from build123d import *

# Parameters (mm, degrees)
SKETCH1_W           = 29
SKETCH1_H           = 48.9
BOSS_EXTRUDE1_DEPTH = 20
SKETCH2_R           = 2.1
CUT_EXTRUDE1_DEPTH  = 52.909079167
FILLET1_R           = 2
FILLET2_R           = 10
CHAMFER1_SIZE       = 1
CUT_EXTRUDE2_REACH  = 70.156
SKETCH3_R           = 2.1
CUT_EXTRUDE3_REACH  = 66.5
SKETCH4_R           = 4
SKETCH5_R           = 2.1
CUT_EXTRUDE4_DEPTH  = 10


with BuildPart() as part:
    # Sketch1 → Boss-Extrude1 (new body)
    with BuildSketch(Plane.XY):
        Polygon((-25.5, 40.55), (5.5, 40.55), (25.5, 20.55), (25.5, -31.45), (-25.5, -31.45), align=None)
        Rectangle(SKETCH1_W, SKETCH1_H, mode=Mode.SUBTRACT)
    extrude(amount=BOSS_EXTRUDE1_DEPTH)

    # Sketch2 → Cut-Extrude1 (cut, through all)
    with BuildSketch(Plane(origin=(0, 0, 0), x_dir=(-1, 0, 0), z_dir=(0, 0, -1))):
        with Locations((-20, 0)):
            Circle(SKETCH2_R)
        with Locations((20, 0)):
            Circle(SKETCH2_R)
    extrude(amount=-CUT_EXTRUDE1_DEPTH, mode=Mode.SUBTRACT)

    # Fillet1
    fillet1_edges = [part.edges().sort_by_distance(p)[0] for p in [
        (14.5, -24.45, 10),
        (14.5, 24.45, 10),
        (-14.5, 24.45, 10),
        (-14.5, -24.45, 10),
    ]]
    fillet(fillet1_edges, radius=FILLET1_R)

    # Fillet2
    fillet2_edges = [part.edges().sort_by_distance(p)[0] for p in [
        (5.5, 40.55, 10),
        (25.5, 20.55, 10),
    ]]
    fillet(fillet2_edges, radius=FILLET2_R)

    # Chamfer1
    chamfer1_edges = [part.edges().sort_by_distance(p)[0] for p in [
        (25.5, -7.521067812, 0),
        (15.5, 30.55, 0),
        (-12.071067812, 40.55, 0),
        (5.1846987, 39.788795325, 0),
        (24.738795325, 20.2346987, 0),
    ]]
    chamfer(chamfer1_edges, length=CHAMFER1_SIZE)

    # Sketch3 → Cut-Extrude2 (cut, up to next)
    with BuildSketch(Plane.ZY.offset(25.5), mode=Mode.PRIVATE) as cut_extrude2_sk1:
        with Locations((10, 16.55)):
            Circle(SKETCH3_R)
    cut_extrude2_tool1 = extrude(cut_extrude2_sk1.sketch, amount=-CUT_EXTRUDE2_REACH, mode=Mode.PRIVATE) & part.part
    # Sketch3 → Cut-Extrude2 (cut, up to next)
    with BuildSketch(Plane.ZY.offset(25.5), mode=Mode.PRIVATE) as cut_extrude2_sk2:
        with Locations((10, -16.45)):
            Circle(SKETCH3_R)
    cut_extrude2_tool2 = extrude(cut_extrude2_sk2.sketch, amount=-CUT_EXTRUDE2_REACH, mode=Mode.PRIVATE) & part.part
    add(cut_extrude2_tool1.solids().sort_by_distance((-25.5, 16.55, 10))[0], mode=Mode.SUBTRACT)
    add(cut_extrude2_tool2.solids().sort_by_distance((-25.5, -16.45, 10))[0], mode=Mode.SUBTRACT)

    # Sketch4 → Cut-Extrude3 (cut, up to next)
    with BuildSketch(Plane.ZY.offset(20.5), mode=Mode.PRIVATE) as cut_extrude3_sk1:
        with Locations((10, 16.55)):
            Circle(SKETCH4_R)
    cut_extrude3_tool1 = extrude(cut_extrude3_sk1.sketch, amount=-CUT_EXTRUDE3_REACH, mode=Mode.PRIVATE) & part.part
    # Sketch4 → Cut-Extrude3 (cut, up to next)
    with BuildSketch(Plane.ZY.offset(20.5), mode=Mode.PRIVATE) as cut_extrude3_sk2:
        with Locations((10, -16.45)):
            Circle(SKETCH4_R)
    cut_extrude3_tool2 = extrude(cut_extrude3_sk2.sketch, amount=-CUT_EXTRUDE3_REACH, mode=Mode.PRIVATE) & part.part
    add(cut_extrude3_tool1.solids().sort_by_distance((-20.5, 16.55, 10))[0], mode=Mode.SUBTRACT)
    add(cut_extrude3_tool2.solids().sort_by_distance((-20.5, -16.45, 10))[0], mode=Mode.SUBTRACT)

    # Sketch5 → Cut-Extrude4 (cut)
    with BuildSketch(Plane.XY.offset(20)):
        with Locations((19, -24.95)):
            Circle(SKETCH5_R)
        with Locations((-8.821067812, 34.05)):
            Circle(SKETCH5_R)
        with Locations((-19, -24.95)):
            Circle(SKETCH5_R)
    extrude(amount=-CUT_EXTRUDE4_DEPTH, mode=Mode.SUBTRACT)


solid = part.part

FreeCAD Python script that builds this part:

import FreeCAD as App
import Part
import Sketcher
Q = App.Units.Quantity


def edges_at(feature, points):
    """Names of the edges that pass closest to the given points."""
    edges = feature.Shape.Edges
    near = lambda p: min(range(len(edges)), key=lambda i: edges[i].distToShape(Part.Vertex(*p))[0])
    return sorted({f"Edge{near(p) + 1}" for p in points})


def add_polygon(sketch, points):
    """Adds a closed chain of lines whose ends are joined by coincident constraints."""
    first, n = sketch.GeometryCount, len(points)
    for a, b in zip(points, points[1:] + points[:1]):
        sketch.addGeometry(Part.LineSegment(App.Vector(*a, 0), App.Vector(*b, 0)), False)
    for i in range(n):
        sketch.addConstraint(Sketcher.Constraint("Coincident", first + i, 2, first + (i + 1) % n, 1))

doc = App.newDocument("Part")
body = doc.addObject("PartDesign::Body", "Body")

# Sketch on XY plane
sketch1 = body.newObject("Sketcher::SketchObject", "Sketch")
sketch1.AttachmentSupport = (doc.getObject("XY_Plane"), [""])
sketch1.MapMode = "FlatFace"
add_polygon(sketch1, [(6, 41), (-26, 41), (-26, -31), (26, -31), (26, 21)])  # lines 0-4
add_polygon(sketch1, [(-14, -24), (-14, 24), (14, 24), (14, -24)])  # lines 5-8
sketch1.addConstraint([
    Sketcher.Constraint("Horizontal", 0),
    Sketcher.Constraint("Vertical", 1),
    Sketcher.Constraint("Horizontal", 2),
    Sketcher.Constraint("Vertical", 3),
    Sketcher.Constraint("Vertical", 5),
    Sketcher.Constraint("Horizontal", 6),
    Sketcher.Constraint("Vertical", 7),
    Sketcher.Constraint("Horizontal", 8),
    Sketcher.Constraint("Symmetric", 5, 2, 7, 2, -1, 1),
    Sketcher.Constraint("DistanceX", 0, 2, 0, 1, Q("31 mm")),
    Sketcher.Constraint("DistanceX", 2, 1, 2, 2, Q("51 mm")),
    Sketcher.Constraint("DistanceX", 6, 1, 6, 2, Q("29 mm")),
    Sketcher.Constraint("DistanceY", 1, 2, 1, 1, Q("72 mm")),
    Sketcher.Constraint("DistanceY", 3, 1, 3, 2, Q("52 mm")),
    Sketcher.Constraint("DistanceY", 5, 1, 5, 2, Q("48.9 mm")),
    Sketcher.Constraint("DistanceX", 0, 2, 5, 2, Q("11 mm")),
    Sketcher.Constraint("DistanceY", 2, 2, 7, 2, Q("7 mm")),
])
pad1 = body.newObject("PartDesign::Pad", "Pad")
pad1.Profile = sketch1
pad1.Length = 20

# Sketch on XY plane
sketch2 = body.newObject("Sketcher::SketchObject", "Sketch001")
sketch2.AttachmentSupport = (doc.getObject("XY_Plane"), [""])
sketch2.MapMode = "FlatFace"
sketch2.addGeometry([
    Part.Circle(App.Vector(20, 0, 0), App.Vector(0, 0, 1), 2.1),
    Part.Circle(App.Vector(-20, 0, 0), App.Vector(0, 0, 1), 2.1),
], False)
sketch2.addConstraint([
    Sketcher.Constraint("Equal", 0, 1),
    Sketcher.Constraint("Symmetric", 0, 3, 1, 3, -1, 1),
    Sketcher.Constraint("PointOnObject", 0, 3, -1),
    Sketcher.Constraint("Diameter", 0, Q("4.2 mm")),
    Sketcher.Constraint("DistanceX", -1, 1, 0, 3, Q("20 mm")),
])
pocket1 = body.newObject("PartDesign::Pocket", "Pocket")
pocket1.Profile = sketch2
pocket1.Type = "ThroughAll"
pocket1.Reversed = True
doc.recompute()

fillet = body.newObject("PartDesign::Fillet", "Fillet")
fillet.Base = (pocket1, edges_at(pocket1, [
    (14.5, -24.45, 10),
    (14.5, 24.45, 10),
    (-14.5, 24.45, 10),
    (-14.5, -24.45, 10),
]))
fillet.Radius = 2
doc.recompute()

fillet2 = body.newObject("PartDesign::Fillet", "Fillet001")
fillet2.Base = (fillet, edges_at(fillet, [(5.5, 40.55, 10), (25.5, 20.55, 10)]))
fillet2.Radius = 10
doc.recompute()

chamfer = body.newObject("PartDesign::Chamfer", "Chamfer")
chamfer.Base = (fillet2, edges_at(fillet2, [
    (25.5, -7.521, 0),
    (15.5, 30.55, 0),
    (-12.071, 40.55, 0),
    (5.185, 39.789, 0),
    (24.739, 20.235, 0),
]))
chamfer.Size = 1

# Sketch on YZ plane
sketch3 = body.newObject("Sketcher::SketchObject", "Sketch002")
sketch3.AttachmentSupport = (doc.getObject("YZ_Plane"), [""])
sketch3.MapMode = "FlatFace"
sketch3.AttachmentOffset = App.Placement(App.Vector(0, 0, -25.5), App.Rotation())
sketch3.addGeometry(Part.Circle(App.Vector(16.6, 10, 0), App.Vector(0, 0, 1), 2.1), False)
sketch3.addConstraint([
    Sketcher.Constraint("Diameter", 0, Q("4.2 mm")),
    Sketcher.Constraint("DistanceY", -1, 1, 0, 3, Q("10 mm")),
    Sketcher.Constraint("DistanceX", -1, 1, 0, 3, Q("16.55 mm")),
])
pocket2 = body.newObject("PartDesign::Pocket", "Pocket001")
pocket2.Profile = sketch3
pocket2.Type = "UpToFirst"
pocket2.Reversed = True

# Sketch on YZ plane
sketch4 = body.newObject("Sketcher::SketchObject", "Sketch003")
sketch4.AttachmentSupport = (doc.getObject("YZ_Plane"), [""])
sketch4.MapMode = "FlatFace"
sketch4.AttachmentOffset = App.Placement(App.Vector(0, 0, -25.5), App.Rotation())
sketch4.addGeometry(Part.Circle(App.Vector(-16.4, 10, 0), App.Vector(0, 0, 1), 2.1), False)
sketch4.addConstraint([
    Sketcher.Constraint("Diameter", 0, Q("4.2 mm")),
    Sketcher.Constraint("DistanceY", -1, 1, 0, 3, Q("10 mm")),
    Sketcher.Constraint("DistanceX", 0, 3, -1, 1, Q("16.45 mm")),
])
pocket3 = body.newObject("PartDesign::Pocket", "Pocket002")
pocket3.Profile = sketch4
pocket3.Type = "UpToFirst"
pocket3.Reversed = True

# Sketch on YZ plane
sketch5 = body.newObject("Sketcher::SketchObject", "Sketch004")
sketch5.AttachmentSupport = (doc.getObject("YZ_Plane"), [""])
sketch5.MapMode = "FlatFace"
sketch5.AttachmentOffset = App.Placement(App.Vector(0, 0, -20.5), App.Rotation())
sketch5.addGeometry(Part.Circle(App.Vector(16.6, 10, 0), App.Vector(0, 0, 1), 4), False)
sketch5.addConstraint([
    Sketcher.Constraint("Diameter", 0, Q("8 mm")),
    Sketcher.Constraint("DistanceY", -1, 1, 0, 3, Q("10 mm")),
    Sketcher.Constraint("DistanceX", -1, 1, 0, 3, Q("16.55 mm")),
])
pocket4 = body.newObject("PartDesign::Pocket", "Pocket003")
pocket4.Profile = sketch5
pocket4.Type = "UpToFirst"
pocket4.Reversed = True

# Sketch on YZ plane
sketch6 = body.newObject("Sketcher::SketchObject", "Sketch005")
sketch6.AttachmentSupport = (doc.getObject("YZ_Plane"), [""])
sketch6.MapMode = "FlatFace"
sketch6.AttachmentOffset = App.Placement(App.Vector(0, 0, -20.5), App.Rotation())
sketch6.addGeometry(Part.Circle(App.Vector(-16.4, 10, 0), App.Vector(0, 0, 1), 4), False)
sketch6.addConstraint([
    Sketcher.Constraint("Diameter", 0, Q("8 mm")),
    Sketcher.Constraint("DistanceY", -1, 1, 0, 3, Q("10 mm")),
    Sketcher.Constraint("DistanceX", 0, 3, -1, 1, Q("16.45 mm")),
])
pocket5 = body.newObject("PartDesign::Pocket", "Pocket004")
pocket5.Profile = sketch6
pocket5.Type = "UpToFirst"
pocket5.Reversed = True

# Sketch on XY plane
sketch7 = body.newObject("Sketcher::SketchObject", "Sketch006")
sketch7.AttachmentSupport = (doc.getObject("XY_Plane"), [""])
sketch7.MapMode = "FlatFace"
sketch7.AttachmentOffset = App.Placement(App.Vector(0, 0, 20), App.Rotation())
sketch7.addGeometry([
    Part.Circle(App.Vector(19, -24.9, 0), App.Vector(0, 0, 1), 2.1),
    Part.Circle(App.Vector(-8.8, 34, 0), App.Vector(0, 0, 1), 2.1),
    Part.Circle(App.Vector(-19, -24.9, 0), App.Vector(0, 0, 1), 2.1),
], False)
sketch7.addConstraint([
    Sketcher.Constraint("Equal", 0, 1),
    Sketcher.Constraint("Equal", 1, 2),
    Sketcher.Constraint("Symmetric", 0, 3, 2, 3, -2),
    Sketcher.Constraint("Diameter", 0, Q("4.2 mm")),
    Sketcher.Constraint("DistanceX", -1, 1, 0, 3, Q("19 mm")),
    Sketcher.Constraint("DistanceY", 0, 3, 1, 3, Q("59 mm")),
    Sketcher.Constraint("DistanceY", 0, 3, -1, 1, Q("24.95 mm")),
    Sketcher.Constraint("DistanceX", 1, 3, -1, 1, Q("8.821068 mm")),
])
pocket6 = body.newObject("PartDesign::Pocket", "Pocket005")
pocket6.Profile = sketch7
pocket6.Length = 10

doc.recompute()
